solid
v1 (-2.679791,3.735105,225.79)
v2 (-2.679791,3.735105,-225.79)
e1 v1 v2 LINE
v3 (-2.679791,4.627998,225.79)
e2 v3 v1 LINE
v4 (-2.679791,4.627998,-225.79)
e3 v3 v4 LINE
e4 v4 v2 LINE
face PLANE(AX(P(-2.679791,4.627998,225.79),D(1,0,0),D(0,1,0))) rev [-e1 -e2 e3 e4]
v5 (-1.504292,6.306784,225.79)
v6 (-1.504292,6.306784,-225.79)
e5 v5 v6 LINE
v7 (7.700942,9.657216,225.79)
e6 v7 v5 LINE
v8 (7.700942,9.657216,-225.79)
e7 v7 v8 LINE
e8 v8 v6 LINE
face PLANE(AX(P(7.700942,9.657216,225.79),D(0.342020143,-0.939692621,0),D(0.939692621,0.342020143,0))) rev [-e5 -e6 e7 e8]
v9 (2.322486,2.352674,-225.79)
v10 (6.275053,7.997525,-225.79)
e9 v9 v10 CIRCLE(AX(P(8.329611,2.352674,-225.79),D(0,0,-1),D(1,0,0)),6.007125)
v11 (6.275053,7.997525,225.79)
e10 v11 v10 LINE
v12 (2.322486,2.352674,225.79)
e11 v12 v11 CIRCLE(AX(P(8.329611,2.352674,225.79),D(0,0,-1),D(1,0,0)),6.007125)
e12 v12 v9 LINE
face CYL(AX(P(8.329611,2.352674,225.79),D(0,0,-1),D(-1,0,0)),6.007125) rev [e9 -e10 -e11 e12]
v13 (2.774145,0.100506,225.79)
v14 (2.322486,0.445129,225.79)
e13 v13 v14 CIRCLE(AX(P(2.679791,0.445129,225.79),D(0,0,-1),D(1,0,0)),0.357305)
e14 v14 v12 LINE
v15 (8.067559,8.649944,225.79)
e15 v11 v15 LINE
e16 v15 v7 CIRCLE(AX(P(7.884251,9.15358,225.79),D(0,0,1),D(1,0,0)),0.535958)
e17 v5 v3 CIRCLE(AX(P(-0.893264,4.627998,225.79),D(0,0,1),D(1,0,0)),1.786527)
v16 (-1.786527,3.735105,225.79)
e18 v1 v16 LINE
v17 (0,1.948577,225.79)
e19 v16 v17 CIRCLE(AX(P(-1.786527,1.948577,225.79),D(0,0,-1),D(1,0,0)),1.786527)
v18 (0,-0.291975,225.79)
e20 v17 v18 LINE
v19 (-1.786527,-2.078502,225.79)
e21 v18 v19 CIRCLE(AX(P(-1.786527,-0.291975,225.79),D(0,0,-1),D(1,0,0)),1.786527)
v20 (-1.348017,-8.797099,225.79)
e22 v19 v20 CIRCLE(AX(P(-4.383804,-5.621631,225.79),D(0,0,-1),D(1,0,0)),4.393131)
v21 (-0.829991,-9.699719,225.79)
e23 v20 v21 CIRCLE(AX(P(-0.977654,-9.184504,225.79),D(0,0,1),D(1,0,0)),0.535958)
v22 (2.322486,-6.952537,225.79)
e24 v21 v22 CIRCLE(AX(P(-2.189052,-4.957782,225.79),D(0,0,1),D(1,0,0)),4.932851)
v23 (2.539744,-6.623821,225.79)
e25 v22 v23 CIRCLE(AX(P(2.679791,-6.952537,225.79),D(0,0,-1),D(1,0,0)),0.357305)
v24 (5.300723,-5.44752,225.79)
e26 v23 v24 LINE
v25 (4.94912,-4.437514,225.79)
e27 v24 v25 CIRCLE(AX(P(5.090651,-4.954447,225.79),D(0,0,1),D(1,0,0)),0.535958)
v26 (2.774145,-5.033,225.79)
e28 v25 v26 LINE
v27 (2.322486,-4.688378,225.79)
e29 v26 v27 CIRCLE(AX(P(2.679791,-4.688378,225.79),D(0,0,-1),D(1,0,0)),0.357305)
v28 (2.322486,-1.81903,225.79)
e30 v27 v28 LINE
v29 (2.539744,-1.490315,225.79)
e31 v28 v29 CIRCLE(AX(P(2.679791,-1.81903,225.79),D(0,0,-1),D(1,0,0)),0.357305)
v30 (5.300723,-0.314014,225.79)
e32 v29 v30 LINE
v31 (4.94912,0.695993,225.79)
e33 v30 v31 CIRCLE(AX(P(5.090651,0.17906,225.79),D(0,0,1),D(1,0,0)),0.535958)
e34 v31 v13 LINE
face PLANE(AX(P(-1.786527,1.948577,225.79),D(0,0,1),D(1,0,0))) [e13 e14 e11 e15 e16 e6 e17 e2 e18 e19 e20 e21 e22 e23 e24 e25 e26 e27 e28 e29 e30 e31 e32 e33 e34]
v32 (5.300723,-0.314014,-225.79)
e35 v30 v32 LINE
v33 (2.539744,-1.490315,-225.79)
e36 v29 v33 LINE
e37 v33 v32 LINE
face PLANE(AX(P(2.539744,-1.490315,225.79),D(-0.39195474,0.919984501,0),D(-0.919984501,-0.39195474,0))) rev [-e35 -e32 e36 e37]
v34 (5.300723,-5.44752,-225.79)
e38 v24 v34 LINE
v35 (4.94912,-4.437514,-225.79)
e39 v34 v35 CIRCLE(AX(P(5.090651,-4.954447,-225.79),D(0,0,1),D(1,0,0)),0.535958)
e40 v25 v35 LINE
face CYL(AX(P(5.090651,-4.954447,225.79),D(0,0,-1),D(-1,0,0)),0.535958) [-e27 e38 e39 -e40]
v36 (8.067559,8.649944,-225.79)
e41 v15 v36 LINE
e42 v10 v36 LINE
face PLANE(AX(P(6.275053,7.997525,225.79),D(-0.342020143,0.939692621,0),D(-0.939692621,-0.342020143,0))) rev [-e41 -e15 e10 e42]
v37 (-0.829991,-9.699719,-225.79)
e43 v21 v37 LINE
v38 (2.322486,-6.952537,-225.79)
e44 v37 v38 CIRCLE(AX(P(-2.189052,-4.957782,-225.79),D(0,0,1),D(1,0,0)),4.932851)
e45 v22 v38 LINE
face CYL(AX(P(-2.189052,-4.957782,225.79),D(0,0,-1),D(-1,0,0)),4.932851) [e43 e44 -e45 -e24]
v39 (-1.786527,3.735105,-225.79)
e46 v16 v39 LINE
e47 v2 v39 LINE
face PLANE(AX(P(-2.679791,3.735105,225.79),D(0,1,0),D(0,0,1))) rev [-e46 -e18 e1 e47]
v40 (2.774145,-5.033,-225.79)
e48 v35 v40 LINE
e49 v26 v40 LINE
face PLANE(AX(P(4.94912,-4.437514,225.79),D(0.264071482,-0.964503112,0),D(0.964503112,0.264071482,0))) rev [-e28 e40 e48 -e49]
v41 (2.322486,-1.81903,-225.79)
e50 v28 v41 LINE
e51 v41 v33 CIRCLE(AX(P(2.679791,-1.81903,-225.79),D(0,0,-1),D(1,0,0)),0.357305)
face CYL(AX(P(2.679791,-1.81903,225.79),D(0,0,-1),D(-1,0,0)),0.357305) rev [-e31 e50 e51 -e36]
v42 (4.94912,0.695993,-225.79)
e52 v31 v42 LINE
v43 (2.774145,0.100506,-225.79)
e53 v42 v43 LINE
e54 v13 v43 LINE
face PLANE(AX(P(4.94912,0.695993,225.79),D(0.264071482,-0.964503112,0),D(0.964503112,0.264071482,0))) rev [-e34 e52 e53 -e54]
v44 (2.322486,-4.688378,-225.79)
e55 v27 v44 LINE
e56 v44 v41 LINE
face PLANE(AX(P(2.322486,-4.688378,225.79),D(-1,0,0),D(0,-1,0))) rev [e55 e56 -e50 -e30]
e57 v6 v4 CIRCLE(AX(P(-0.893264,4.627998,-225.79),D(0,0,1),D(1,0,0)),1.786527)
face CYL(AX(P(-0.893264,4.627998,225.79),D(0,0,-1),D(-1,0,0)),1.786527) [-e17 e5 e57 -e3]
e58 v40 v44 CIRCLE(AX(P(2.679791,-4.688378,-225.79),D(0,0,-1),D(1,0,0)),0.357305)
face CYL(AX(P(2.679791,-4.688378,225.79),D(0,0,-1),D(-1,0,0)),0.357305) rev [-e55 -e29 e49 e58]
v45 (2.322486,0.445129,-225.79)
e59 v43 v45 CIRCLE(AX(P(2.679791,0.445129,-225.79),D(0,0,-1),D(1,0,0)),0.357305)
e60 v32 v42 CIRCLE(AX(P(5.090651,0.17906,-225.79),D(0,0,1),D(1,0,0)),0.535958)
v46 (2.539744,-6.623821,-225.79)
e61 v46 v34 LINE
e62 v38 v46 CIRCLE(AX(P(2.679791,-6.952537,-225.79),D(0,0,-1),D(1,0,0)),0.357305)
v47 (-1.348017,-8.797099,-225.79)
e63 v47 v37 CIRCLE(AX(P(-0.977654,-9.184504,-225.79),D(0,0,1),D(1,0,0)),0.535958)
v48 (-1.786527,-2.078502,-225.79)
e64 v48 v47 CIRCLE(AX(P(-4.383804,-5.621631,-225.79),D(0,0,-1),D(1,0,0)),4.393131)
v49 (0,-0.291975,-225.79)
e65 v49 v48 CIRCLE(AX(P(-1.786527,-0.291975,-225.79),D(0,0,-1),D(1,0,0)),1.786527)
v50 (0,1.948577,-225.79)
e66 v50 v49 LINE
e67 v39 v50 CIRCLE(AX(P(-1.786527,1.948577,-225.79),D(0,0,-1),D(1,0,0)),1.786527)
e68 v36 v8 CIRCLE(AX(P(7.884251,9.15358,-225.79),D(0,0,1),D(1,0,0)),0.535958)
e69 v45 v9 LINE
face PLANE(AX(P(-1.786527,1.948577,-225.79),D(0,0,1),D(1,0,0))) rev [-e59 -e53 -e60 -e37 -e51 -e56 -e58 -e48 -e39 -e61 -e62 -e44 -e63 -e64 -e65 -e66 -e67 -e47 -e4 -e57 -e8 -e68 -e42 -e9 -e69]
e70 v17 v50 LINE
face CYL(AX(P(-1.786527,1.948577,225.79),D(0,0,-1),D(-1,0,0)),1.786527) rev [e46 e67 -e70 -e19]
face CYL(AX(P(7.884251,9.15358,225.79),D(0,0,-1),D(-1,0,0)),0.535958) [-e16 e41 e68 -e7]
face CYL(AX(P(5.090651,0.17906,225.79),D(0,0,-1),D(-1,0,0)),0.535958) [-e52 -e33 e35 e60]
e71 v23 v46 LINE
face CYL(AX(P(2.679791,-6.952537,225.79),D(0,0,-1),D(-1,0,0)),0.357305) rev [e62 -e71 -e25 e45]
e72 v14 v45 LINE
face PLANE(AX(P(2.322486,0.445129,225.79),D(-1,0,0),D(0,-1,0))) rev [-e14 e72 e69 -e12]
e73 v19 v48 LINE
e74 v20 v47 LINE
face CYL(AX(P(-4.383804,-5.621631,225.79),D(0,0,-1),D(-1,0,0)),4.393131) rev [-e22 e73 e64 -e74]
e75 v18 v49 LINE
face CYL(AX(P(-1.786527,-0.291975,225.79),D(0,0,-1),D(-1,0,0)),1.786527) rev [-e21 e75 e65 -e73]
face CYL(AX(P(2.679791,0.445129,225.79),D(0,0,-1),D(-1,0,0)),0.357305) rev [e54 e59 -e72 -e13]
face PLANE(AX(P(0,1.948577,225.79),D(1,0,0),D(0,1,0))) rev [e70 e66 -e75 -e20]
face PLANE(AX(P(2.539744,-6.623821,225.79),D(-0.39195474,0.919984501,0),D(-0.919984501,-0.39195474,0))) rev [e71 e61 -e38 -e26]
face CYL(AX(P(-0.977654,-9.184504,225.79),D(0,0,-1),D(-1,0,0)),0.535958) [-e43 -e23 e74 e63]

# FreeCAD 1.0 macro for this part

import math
import FreeCAD as App
import Part
import Sketcher

V = App.Vector
Q = App.Units.Quantity

doc = App.newDocument("Part")
params = doc.addObject("Spreadsheet::Sheet", "Params")
for row, (alias, value) in enumerate([
    ("pad1_length", "451.58 mm"),
], start=1):
    params.set(f"A{row}", alias)
    params.set(f"B{row}", "=" + value)
    params.setAlias(f"B{row}", alias)

body = doc.addObject("PartDesign::Body", "Body")

sketch1 = body.newObject("Sketcher::SketchObject", "Sketch")
sketch1.AttachmentSupport = (doc.getObject("XY_Plane"), [""])
sketch1.MapMode = "FlatFace"
sketch1.addGeometry([
    Part.LineSegment(V(0, 1.948577, 0), V(0, -0.291975, 0)),
    Part.ArcOfCircle(Part.Circle(V(-1.786527, -0.291975, 0), V(0, 0, 1), 1.786527), math.radians(-90), math.radians(0)),
    Part.ArcOfCircle(Part.Circle(V(-4.383804, -5.621631, 0), V(0, 0, 1), 4.393131), math.radians(-46.288279), math.radians(53.756865)),
    Part.ArcOfCircle(Part.Circle(V(-0.977654, -9.184504, 0), V(0, 0, 1), 0.535958), math.radians(133.711721), math.radians(285.992548)),
    Part.ArcOfCircle(Part.Circle(V(-2.189052, -4.957782, 0), V(0, 0, 1), 4.932851), math.radians(-74.007452), math.radians(-23.852396)),
    Part.ArcOfCircle(Part.Circle(V(2.679791, -6.952537, 0), V(0, 0, 1), 0.357305), math.radians(113.076184), math.radians(180)),
    Part.LineSegment(V(2.539744, -6.623821, 0), V(5.300723, -5.44752, 0)),
    Part.ArcOfCircle(Part.Circle(V(5.090651, -4.954447, 0), V(0, 0, 1), 0.535958), math.radians(-66.923816), math.radians(105.311787)),
    Part.LineSegment(V(4.94912, -4.437514, 0), V(2.774145, -5.033, 0)),
    Part.ArcOfCircle(Part.Circle(V(2.679791, -4.688378, 0), V(0, 0, 1), 0.357305), math.radians(180), math.radians(285.311787)),
    Part.LineSegment(V(2.322486, -4.688378, 0), V(2.322486, -1.81903, 0)),
    Part.ArcOfCircle(Part.Circle(V(2.679791, -1.81903, 0), V(0, 0, 1), 0.357305), math.radians(113.076184), math.radians(180)),
    Part.LineSegment(V(2.539744, -1.490315, 0), V(5.300723, -0.314014, 0)),
    Part.ArcOfCircle(Part.Circle(V(5.090651, 0.17906, 0), V(0, 0, 1), 0.535958), math.radians(-66.923816), math.radians(105.311788)),
    Part.LineSegment(V(4.94912, 0.695993, 0), V(2.774145, 0.100506, 0)),
    Part.ArcOfCircle(Part.Circle(V(2.679791, 0.445129, 0), V(0, 0, 1), 0.357305), math.radians(-180), math.radians(-74.688213)),
    Part.LineSegment(V(2.322486, 0.445129, 0), V(2.322486, 2.352674, 0)),
    Part.ArcOfCircle(Part.Circle(V(8.329611, 2.352674, 0), V(0, 0, 1), 6.007125), math.radians(110), math.radians(180)),
    Part.LineSegment(V(6.275053, 7.997525, 0), V(8.067559, 8.649944, 0)),
    Part.ArcOfCircle(Part.Circle(V(7.884251, 9.15358, 0), V(0, 0, 1), 0.535958), math.radians(-70), math.radians(110)),
    Part.LineSegment(V(7.700942, 9.657216, 0), V(-1.504292, 6.306784, 0)),
    Part.ArcOfCircle(Part.Circle(V(-0.893264, 4.627998, 0), V(0, 0, 1), 1.786527), math.radians(110), math.radians(180)),
    Part.LineSegment(V(-2.679791, 4.627998, 0), V(-2.679791, 3.735105, 0)),
    Part.LineSegment(V(-2.679791, 3.735105, 0), V(-1.786527, 3.735105, 0)),
    Part.ArcOfCircle(Part.Circle(V(-1.786527, 1.948577, 0), V(0, 0, 1), 1.786527), math.radians(0), math.radians(90)),
], False)
sketch1.addConstraint([
    Sketcher.Constraint("Tangent", 0, 2, 1, 2),
    Sketcher.Constraint("Coincident", 1, 1, 2, 2),
    Sketcher.Constraint("Tangent", 2, 1, 3, 1),
    Sketcher.Constraint("Tangent", 3, 2, 4, 1),
    Sketcher.Constraint("Coincident", 4, 2, 5, 2),
    Sketcher.Constraint("Tangent", 5, 1, 6, 1),
    Sketcher.Constraint("Tangent", 6, 2, 7, 1),
    Sketcher.Constraint("Tangent", 7, 2, 8, 1),
    Sketcher.Constraint("Tangent", 8, 2, 9, 2),
    Sketcher.Constraint("Tangent", 9, 1, 10, 1),
    Sketcher.Constraint("Tangent", 10, 2, 11, 2),
    Sketcher.Constraint("Tangent", 11, 1, 12, 1),
    Sketcher.Constraint("Tangent", 12, 2, 13, 1),
    Sketcher.Constraint("Tangent", 13, 2, 14, 1),
    Sketcher.Constraint("Tangent", 14, 2, 15, 2),
    Sketcher.Constraint("Tangent", 15, 1, 16, 1),
    Sketcher.Constraint("Tangent", 16, 2, 17, 2),
    Sketcher.Constraint("Tangent", 17, 1, 18, 1),
    Sketcher.Constraint("Tangent", 18, 2, 19, 1),
    Sketcher.Constraint("Tangent", 19, 2, 20, 1),
    Sketcher.Constraint("Tangent", 20, 2, 21, 1),
    Sketcher.Constraint("Tangent", 21, 2, 22, 1),
    Sketcher.Constraint("Coincident", 22, 2, 23, 1),
    Sketcher.Constraint("Tangent", 23, 2, 24, 2),
    Sketcher.Constraint("Tangent", 24, 1, 0, 1),
    Sketcher.Constraint("Vertical", 0),
    Sketcher.Constraint("Vertical", 10),
    Sketcher.Constraint("Vertical", 16),
    Sketcher.Constraint("Vertical", 22),
    Sketcher.Constraint("Horizontal", 23),
    Sketcher.Constraint("Equal", 3, 7),
    Sketcher.Constraint("Equal", 5, 9),
    Sketcher.Constraint("Equal", 9, 11),
    Sketcher.Constraint("Equal", 7, 13),
    Sketcher.Constraint("Equal", 11, 15),
    Sketcher.Constraint("Equal", 13, 19),
    Sketcher.Constraint("Equal", 1, 21),
    Sketcher.Constraint("Equal", 21, 24),
    Sketcher.Constraint("PointOnObject", 0, 2, -2),
    Sketcher.Constraint("Parallel", 6, 12),
    Sketcher.Constraint("Parallel", 8, 14),
    Sketcher.Constraint("Parallel", 18, 20),
    Sketcher.Constraint("Horizontal", 5, 3, 4, 2),
    Sketcher.Constraint("Vertical", 5, 3, 9, 3),
    Sketcher.Constraint("Vertical", 7, 3, 13, 3),
    Sketcher.Constraint("Vertical", 11, 3, 15, 3),
    Sketcher.Constraint("Vertical", 24, 3, 1, 1),
    Sketcher.Constraint("Angle", 18, Q("20 deg")),
    Sketcher.Constraint("Radius", 2, 4.393131),
    Sketcher.Constraint("Radius", 3, 0.535958),
    Sketcher.Constraint("Radius", 4, 4.932851),
    Sketcher.Constraint("DistanceY", 8, 2, -1, 1, 5.033),
    Sketcher.Constraint("Radius", 1, 1.786527),
    Sketcher.Constraint("Radius", 5, 0.357305),
    Sketcher.Constraint("Radius", 17, 6.007125),
    Sketcher.Constraint("DistanceY", 2, 1, -1, 1, 8.797099),
    Sketcher.Constraint("DistanceX", 4, 3, 3, 3, 1.211398),
    Sketcher.Constraint("DistanceX", 13, 3, 19, 3, 2.793599),
    Sketcher.Constraint("DistanceY", 5, 1, 6, 2, 1.176301),
    Sketcher.Constraint("DistanceX", 5, 1, 8, 2, 0.234402),
    Sketcher.Constraint("DistanceX", 13, 3, 17, 1, 1.184402),
    Sketcher.Constraint("DistanceX", 23, 1, 23, 2, 0.893264),
    Sketcher.Constraint("DistanceY", 0, 2, 0, 1, 2.240552),
    Sketcher.Constraint("DistanceY", 10, 1, 10, 2, 2.869348),
    Sketcher.Constraint("DistanceY", 16, 1, 16, 2, 1.907545),
    Sketcher.Constraint("DistanceY", 22, 2, 22, 1, 0.892893),
    Sketcher.Constraint("DistanceY", 2, 3, -1, 1, 5.621631),
])
pad1 = body.newObject("PartDesign::Pad", "Pad")
pad1.Profile = sketch1
pad1.setExpression("Length", "Params.pad1_length")
pad1.Midplane = True

doc.recompute()
